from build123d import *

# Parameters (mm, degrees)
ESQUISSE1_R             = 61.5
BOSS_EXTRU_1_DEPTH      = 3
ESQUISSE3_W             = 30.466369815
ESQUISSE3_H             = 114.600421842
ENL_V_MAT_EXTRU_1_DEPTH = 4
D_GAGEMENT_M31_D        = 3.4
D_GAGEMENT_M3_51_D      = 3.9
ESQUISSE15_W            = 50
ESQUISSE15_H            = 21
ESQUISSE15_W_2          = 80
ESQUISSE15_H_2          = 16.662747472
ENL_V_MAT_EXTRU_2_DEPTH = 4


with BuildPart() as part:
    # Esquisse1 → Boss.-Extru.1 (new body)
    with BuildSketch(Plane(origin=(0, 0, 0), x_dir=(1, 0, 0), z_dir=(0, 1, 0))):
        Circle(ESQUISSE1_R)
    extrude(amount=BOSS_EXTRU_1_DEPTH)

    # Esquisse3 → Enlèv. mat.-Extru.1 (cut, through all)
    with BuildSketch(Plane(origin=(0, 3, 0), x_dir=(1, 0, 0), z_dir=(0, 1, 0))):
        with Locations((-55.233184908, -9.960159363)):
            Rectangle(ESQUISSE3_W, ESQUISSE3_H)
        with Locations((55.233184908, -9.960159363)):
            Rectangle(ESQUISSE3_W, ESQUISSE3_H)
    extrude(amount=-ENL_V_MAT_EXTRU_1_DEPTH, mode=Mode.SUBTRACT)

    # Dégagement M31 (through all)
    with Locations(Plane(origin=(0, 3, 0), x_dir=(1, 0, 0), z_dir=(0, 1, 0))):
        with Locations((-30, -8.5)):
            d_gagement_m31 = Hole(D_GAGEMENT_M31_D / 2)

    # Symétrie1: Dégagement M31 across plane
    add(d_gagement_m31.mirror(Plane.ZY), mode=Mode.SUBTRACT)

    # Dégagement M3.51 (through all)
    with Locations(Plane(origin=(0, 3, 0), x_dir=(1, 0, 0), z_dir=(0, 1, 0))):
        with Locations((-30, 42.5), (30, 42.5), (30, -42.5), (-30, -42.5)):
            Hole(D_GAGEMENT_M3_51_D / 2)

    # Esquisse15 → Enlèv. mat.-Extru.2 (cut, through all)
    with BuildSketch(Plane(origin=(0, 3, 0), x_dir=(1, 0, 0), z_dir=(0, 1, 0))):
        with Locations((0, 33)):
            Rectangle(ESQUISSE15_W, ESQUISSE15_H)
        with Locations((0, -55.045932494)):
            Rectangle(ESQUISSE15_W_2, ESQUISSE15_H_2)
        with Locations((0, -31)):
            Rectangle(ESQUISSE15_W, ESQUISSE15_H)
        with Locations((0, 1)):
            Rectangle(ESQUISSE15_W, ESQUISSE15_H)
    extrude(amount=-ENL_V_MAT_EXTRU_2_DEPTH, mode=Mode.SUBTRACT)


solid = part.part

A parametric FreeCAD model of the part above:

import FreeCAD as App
import Part
import Sketcher

doc = App.newDocument("Part")
body = doc.addObject("PartDesign::Body", "Body")

sketch1 = body.newObject("Sketcher::SketchObject", "Sketch")
sketch1.AttachmentSupport = (doc.getObject("XZ_Plane"), [""])
sketch1.MapMode = "FlatFace"
sketch1.addGeometry(Part.Circle(App.Vector(0, 0, 0), App.Vector(0, 0, 1), 62), False)
sketch1.addConstraint(Sketcher.Constraint("Coincident", 0, 3, -1, 1))
sketch1.addConstraint(Sketcher.Constraint("Diameter", 0, 123.0))
pad1 = body.newObject("PartDesign::Pad", "Pad")
pad1.Profile = sketch1
pad1.Length = 3
pad1.Reversed = True

sketch2 = body.newObject("Sketcher::SketchObject", "Sketch001")
sketch2.AttachmentSupport = (doc.getObject("XZ_Plane"), [""])
sketch2.MapMode = "FlatFace"
sketch2.AttachmentOffset = App.Placement(App.Vector(0, 0, -3), App.Rotation())
sketch2.addGeometry(Part.LineSegment(App.Vector(-70, -47, 0), App.Vector(-70, 67, 0)), False)
sketch2.addGeometry(Part.LineSegment(App.Vector(-70, 67, 0), App.Vector(-40, 67, 0)), False)
sketch2.addGeometry(Part.LineSegment(App.Vector(-40, 67, 0), App.Vector(-40, -47, 0)), False)
sketch2.addGeometry(Part.LineSegment(App.Vector(-40, -47, 0), App.Vector(-70, -47, 0)), False)
sketch2.addGeometry(Part.LineSegment(App.Vector(40, -47, 0), App.Vector(40, 67, 0)), False)
sketch2.addGeometry(Part.LineSegment(App.Vector(40, 67, 0), App.Vector(70, 67, 0)), False)
sketch2.addGeometry(Part.LineSegment(App.Vector(70, 67, 0), App.Vector(70, -47, 0)), False)
sketch2.addGeometry(Part.LineSegment(App.Vector(70, -47, 0), App.Vector(40, -47, 0)), False)
sketch2.addConstraint(Sketcher.Constraint("Coincident", 0, 2, 1, 1))
sketch2.addConstraint(Sketcher.Constraint("Coincident", 1, 2, 2, 1))
sketch2.addConstraint(Sketcher.Constraint("Coincident", 2, 2, 3, 1))
sketch2.addConstraint(Sketcher.Constraint("Coincident", 3, 2, 0, 1))
sketch2.addConstraint(Sketcher.Constraint("Coincident", 4, 2, 5, 1))
sketch2.addConstraint(Sketcher.Constraint("Coincident", 5, 2, 6, 1))
sketch2.addConstraint(Sketcher.Constraint("Coincident", 6, 2, 7, 1))
sketch2.addConstraint(Sketcher.Constraint("Coincident", 7, 2, 4, 1))
sketch2.addConstraint(Sketcher.Constraint("Vertical", 0))
sketch2.addConstraint(Sketcher.Constraint("Horizontal", 1))
sketch2.addConstraint(Sketcher.Constraint("Vertical", 2))
sketch2.addConstraint(Sketcher.Constraint("Horizontal", 3))
sketch2.addConstraint(Sketcher.Constraint("Vertical", 4))
sketch2.addConstraint(Sketcher.Constraint("Horizontal", 5))
sketch2.addConstraint(Sketcher.Constraint("Vertical", 6))
sketch2.addConstraint(Sketcher.Constraint("Horizontal", 7))
sketch2.addConstraint(Sketcher.Constraint("Symmetric", 1, 2, 4, 2, -2))
sketch2.addConstraint(Sketcher.Constraint("Symmetric", 3, 2, 6, 2, -2))
sketch2.addConstraint(Sketcher.Constraint("DistanceX", 1, 2, -1, 1, 40.0))
sketch2.addConstraint(Sketcher.Constraint("DistanceX", 1, 1, 1, 2, 30.46637))
sketch2.addConstraint(Sketcher.Constraint("DistanceY", 0, 1, 0, 2, 114.600422))
sketch2.addConstraint(Sketcher.Constraint("DistanceY", -1, 1, 0, 2, 67.26037))
pocket1 = body.newObject("PartDesign::Pocket", "Pocket")
pocket1.Profile = sketch2
pocket1.Type = "ThroughAll"
pocket1.Reversed = True

sketch3 = body.newObject("Sketcher::SketchObject", "Sketch002")
sketch3.AttachmentSupport = (doc.getObject("XZ_Plane"), [""])
sketch3.MapMode = "FlatFace"
sketch3.AttachmentOffset = App.Placement(App.Vector(0, 0, -3), App.Rotation())
sketch3.addGeometry(Part.Circle(App.Vector(-30, 8.5, 0), App.Vector(0, 0, 1), 1.7), False)
sketch3.addConstraint(Sketcher.Constraint("Diameter", 0, 3.4))
sketch3.addConstraint(Sketcher.Constraint("DistanceX", 0, 3, -1, 1, 30.0))
sketch3.addConstraint(Sketcher.Constraint("DistanceY", -1, 1, 0, 3, 8.5))
doc.recompute()
hole = body.newObject("PartDesign::Hole", "Hole")
hole.Profile = sketch3
hole.ThreadType = "None"
hole.Diameter = 3.4
hole.DepthType = "ThroughAll"
hole.Reversed = True
doc.recompute()

mirrored = body.newObject("PartDesign::Mirrored", "Mirrored")
mirrored.Originals = [hole]
mirrored.MirrorPlane = (doc.getObject("YZ_Plane"), [""])
body.Tip = mirrored

sketch4 = body.newObject("Sketcher::SketchObject", "Sketch003")
sketch4.AttachmentSupport = (doc.getObject("XZ_Plane"), [""])
sketch4.MapMode = "FlatFace"
sketch4.AttachmentOffset = App.Placement(App.Vector(0, 0, -3), App.Rotation())
sketch4.addGeometry(Part.Circle(App.Vector(-30, -42.5, 0), App.Vector(0, 0, 1), 1.9), False)
sketch4.addGeometry(Part.Circle(App.Vector(30, -42.5, 0), App.Vector(0, 0, 1), 1.9), False)
sketch4.addGeometry(Part.Circle(App.Vector(30, 42.5, 0), App.Vector(0, 0, 1), 1.9), False)
sketch4.addGeometry(Part.Circle(App.Vector(-30, 42.5, 0), App.Vector(0, 0, 1), 1.9), False)
sketch4.addConstraint(Sketcher.Constraint("Equal", 0, 1))
sketch4.addConstraint(Sketcher.Constraint("Equal", 1, 2))
sketch4.addConstraint(Sketcher.Constraint("Equal", 2, 3))
sketch4.addConstraint(Sketcher.Constraint("Symmetric", 0, 3, 2, 3, -1, 1))
sketch4.addConstraint(Sketcher.Constraint("Symmetric", 1, 3, 3, 3, -1, 1))
sketch4.addConstraint(Sketcher.Constraint("Symmetric", 0, 3, 1, 3, -2))
sketch4.addConstraint(Sketcher.Constraint("Diameter", 0, 3.9))
sketch4.addConstraint(Sketcher.Constraint("DistanceX", 0, 3, -1, 1, 30.0))
sketch4.addConstraint(Sketcher.Constraint("DistanceY", 1, 3, 2, 3, 85.0))
doc.recompute()
hole2 = body.newObject("PartDesign::Hole", "Hole001")
hole2.Profile = sketch4
hole2.ThreadType = "None"
hole2.Diameter = 3.9
hole2.DepthType = "ThroughAll"
hole2.Reversed = True

sketch5 = body.newObject("Sketcher::SketchObject", "Sketch004")
sketch5.AttachmentSupport = (doc.getObject("XZ_Plane"), [""])
sketch5.MapMode = "FlatFace"
sketch5.AttachmentOffset = App.Placement(App.Vector(0, 0, -3), App.Rotation())
sketch5.addGeometry(Part.LineSegment(App.Vector(-25, -44, 0), App.Vector(-25, -22, 0)), False)
sketch5.addGeometry(Part.LineSegment(App.Vector(-25, -22, 0), App.Vector(25, -22, 0)), False)
sketch5.addGeometry(Part.LineSegment(App.Vector(25, -22, 0), App.Vector(25, -44, 0)), False)
sketch5.addGeometry(Part.LineSegment(App.Vector(25, -44, 0), App.Vector(-25, -44, 0)), False)
sketch5.addGeometry(Part.LineSegment(App.Vector(-40, 47, 0), App.Vector(-40, 63, 0)), False)
sketch5.addGeometry(Part.LineSegment(App.Vector(-40, 63, 0), App.Vector(40, 63, 0)), False)
sketch5.addGeometry(Part.LineSegment(App.Vector(40, 63, 0), App.Vector(40, 47, 0)), False)
sketch5.addGeometry(Part.LineSegment(App.Vector(40, 47, 0), App.Vector(-40, 47, 0)), False)
sketch5.addGeometry(Part.LineSegment(App.Vector(-25, 20, 0), App.Vector(-25, 42, 0)), False)
sketch5.addGeometry(Part.LineSegment(App.Vector(-25, 42, 0), App.Vector(25, 42, 0)), False)
sketch5.addGeometry(Part.LineSegment(App.Vector(25, 42, 0), App.Vector(25, 20, 0)), False)
sketch5.addGeometry(Part.LineSegment(App.Vector(25, 20, 0), App.Vector(-25, 20, 0)), False)
sketch5.addGeometry(Part.LineSegment(App.Vector(-25, -12, 0), App.Vector(-25, 10, 0)), False)
sketch5.addGeometry(Part.LineSegment(App.Vector(-25, 10, 0), App.Vector(25, 10, 0)), False)
sketch5.addGeometry(Part.LineSegment(App.Vector(25, 10, 0), App.Vector(25, -12, 0)), False)
sketch5.addGeometry(Part.LineSegment(App.Vector(25, -12, 0), App.Vector(-25, -12, 0)), False)
sketch5.addConstraint(Sketcher.Constraint("Coincident", 0, 2, 1, 1))
sketch5.addConstraint(Sketcher.Constraint("Coincident", 1, 2, 2, 1))
sketch5.addConstraint(Sketcher.Constraint("Coincident", 2, 2, 3, 1))
sketch5.addConstraint(Sketcher.Constraint("Coincident", 3, 2, 0, 1))
sketch5.addConstraint(Sketcher.Constraint("Coincident", 4, 2, 5, 1))
sketch5.addConstraint(Sketcher.Constraint("Coincident", 5, 2, 6, 1))
sketch5.addConstraint(Sketcher.Constraint("Coincident", 6, 2, 7, 1))
sketch5.addConstraint(Sketcher.Constraint("Coincident", 7, 2, 4, 1))
sketch5.addConstraint(Sketcher.Constraint("Coincident", 8, 2, 9, 1))
sketch5.addConstraint(Sketcher.Constraint("Coincident", 9, 2, 10, 1))
sketch5.addConstraint(Sketcher.Constraint("Coincident", 10, 2, 11, 1))
sketch5.addConstraint(Sketcher.Constraint("Coincident", 11, 2, 8, 1))
sketch5.addConstraint(Sketcher.Constraint("Coincident", 12, 2, 13, 1))
sketch5.addConstraint(Sketcher.Constraint("Coincident", 13, 2, 14, 1))
sketch5.addConstraint(Sketcher.Constraint("Coincident", 14, 2, 15, 1))
sketch5.addConstraint(Sketcher.Constraint("Coincident", 15, 2, 12, 1))
sketch5.addConstraint(Sketcher.Constraint("Vertical", 0))
sketch5.addConstraint(Sketcher.Constraint("Horizontal", 1))
sketch5.addConstraint(Sketcher.Constraint("Vertical", 2))
sketch5.addConstraint(Sketcher.Constraint("Horizontal", 3))
sketch5.addConstraint(Sketcher.Constraint("Vertical", 4))
sketch5.addConstraint(Sketcher.Constraint("Horizontal", 5))
sketch5.addConstraint(Sketcher.Constraint("Vertical", 6))
sketch5.addConstraint(Sketcher.Constraint("Horizontal", 7))
sketch5.addConstraint(Sketcher.Constraint("Vertical", 8))
sketch5.addConstraint(Sketcher.Constraint("Horizontal", 9))
sketch5.addConstraint(Sketcher.Constraint("Vertical", 10))
sketch5.addConstraint(Sketcher.Constraint("Horizontal", 11))
sketch5.addConstraint(Sketcher.Constraint("Vertical", 12))
sketch5.addConstraint(Sketcher.Constraint("Horizontal", 13))
sketch5.addConstraint(Sketcher.Constraint("Vertical", 14))
sketch5.addConstraint(Sketcher.Constraint("Horizontal", 15))
sketch5.addConstraint(Sketcher.Constraint("Vertical", 3, 2, 8, 2))
sketch5.addConstraint(Sketcher.Constraint("Vertical", 2, 2, 9, 2))
sketch5.addConstraint(Sketcher.Constraint("Vertical", 11, 2, 12, 2))
sketch5.addConstraint(Sketcher.Constraint("Vertical", 10, 2, 13, 2))
sketch5.addConstraint(Sketcher.Constraint("Equal", 2, 8))
sketch5.addConstraint(Sketcher.Constraint("Equal", 10, 12))
sketch5.addConstraint(Sketcher.Constraint("DistanceX", 1, 1, 1, 2, 50.0))
sketch5.addConstraint(Sketcher.Constraint("DistanceX", 5, 1, 5, 2, 80.0))
sketch5.addConstraint(Sketcher.Constraint("DistanceY", 0, 1, 0, 2, 21.0))
sketch5.addConstraint(Sketcher.Constraint("DistanceX", 0, 2, -1, 1, 25.0))
sketch5.addConstraint(Sketcher.Constraint("DistanceX", 4, 2, -1, 1, 40.0))
sketch5.addConstraint(Sketcher.Constraint("DistanceY", 0, 2, 8, 2, 64.0))
sketch5.addConstraint(Sketcher.Constraint("DistanceY", 12, 2, 11, 2, 11.0))
sketch5.addConstraint(Sketcher.Constraint("DistanceY", 0, 2, -1, 1, 22.5))
sketch5.addConstraint(Sketcher.Constraint("DistanceY", 4, 1, 4, 2, 16.662747))
sketch5.addConstraint(Sketcher.Constraint("DistanceY", -1, 1, 6, 2, 46.714559))
pocket2 = body.newObject("PartDesign::Pocket", "Pocket001")
pocket2.Profile = sketch5
pocket2.Type = "ThroughAll"
pocket2.Reversed = True

doc.recompute()
